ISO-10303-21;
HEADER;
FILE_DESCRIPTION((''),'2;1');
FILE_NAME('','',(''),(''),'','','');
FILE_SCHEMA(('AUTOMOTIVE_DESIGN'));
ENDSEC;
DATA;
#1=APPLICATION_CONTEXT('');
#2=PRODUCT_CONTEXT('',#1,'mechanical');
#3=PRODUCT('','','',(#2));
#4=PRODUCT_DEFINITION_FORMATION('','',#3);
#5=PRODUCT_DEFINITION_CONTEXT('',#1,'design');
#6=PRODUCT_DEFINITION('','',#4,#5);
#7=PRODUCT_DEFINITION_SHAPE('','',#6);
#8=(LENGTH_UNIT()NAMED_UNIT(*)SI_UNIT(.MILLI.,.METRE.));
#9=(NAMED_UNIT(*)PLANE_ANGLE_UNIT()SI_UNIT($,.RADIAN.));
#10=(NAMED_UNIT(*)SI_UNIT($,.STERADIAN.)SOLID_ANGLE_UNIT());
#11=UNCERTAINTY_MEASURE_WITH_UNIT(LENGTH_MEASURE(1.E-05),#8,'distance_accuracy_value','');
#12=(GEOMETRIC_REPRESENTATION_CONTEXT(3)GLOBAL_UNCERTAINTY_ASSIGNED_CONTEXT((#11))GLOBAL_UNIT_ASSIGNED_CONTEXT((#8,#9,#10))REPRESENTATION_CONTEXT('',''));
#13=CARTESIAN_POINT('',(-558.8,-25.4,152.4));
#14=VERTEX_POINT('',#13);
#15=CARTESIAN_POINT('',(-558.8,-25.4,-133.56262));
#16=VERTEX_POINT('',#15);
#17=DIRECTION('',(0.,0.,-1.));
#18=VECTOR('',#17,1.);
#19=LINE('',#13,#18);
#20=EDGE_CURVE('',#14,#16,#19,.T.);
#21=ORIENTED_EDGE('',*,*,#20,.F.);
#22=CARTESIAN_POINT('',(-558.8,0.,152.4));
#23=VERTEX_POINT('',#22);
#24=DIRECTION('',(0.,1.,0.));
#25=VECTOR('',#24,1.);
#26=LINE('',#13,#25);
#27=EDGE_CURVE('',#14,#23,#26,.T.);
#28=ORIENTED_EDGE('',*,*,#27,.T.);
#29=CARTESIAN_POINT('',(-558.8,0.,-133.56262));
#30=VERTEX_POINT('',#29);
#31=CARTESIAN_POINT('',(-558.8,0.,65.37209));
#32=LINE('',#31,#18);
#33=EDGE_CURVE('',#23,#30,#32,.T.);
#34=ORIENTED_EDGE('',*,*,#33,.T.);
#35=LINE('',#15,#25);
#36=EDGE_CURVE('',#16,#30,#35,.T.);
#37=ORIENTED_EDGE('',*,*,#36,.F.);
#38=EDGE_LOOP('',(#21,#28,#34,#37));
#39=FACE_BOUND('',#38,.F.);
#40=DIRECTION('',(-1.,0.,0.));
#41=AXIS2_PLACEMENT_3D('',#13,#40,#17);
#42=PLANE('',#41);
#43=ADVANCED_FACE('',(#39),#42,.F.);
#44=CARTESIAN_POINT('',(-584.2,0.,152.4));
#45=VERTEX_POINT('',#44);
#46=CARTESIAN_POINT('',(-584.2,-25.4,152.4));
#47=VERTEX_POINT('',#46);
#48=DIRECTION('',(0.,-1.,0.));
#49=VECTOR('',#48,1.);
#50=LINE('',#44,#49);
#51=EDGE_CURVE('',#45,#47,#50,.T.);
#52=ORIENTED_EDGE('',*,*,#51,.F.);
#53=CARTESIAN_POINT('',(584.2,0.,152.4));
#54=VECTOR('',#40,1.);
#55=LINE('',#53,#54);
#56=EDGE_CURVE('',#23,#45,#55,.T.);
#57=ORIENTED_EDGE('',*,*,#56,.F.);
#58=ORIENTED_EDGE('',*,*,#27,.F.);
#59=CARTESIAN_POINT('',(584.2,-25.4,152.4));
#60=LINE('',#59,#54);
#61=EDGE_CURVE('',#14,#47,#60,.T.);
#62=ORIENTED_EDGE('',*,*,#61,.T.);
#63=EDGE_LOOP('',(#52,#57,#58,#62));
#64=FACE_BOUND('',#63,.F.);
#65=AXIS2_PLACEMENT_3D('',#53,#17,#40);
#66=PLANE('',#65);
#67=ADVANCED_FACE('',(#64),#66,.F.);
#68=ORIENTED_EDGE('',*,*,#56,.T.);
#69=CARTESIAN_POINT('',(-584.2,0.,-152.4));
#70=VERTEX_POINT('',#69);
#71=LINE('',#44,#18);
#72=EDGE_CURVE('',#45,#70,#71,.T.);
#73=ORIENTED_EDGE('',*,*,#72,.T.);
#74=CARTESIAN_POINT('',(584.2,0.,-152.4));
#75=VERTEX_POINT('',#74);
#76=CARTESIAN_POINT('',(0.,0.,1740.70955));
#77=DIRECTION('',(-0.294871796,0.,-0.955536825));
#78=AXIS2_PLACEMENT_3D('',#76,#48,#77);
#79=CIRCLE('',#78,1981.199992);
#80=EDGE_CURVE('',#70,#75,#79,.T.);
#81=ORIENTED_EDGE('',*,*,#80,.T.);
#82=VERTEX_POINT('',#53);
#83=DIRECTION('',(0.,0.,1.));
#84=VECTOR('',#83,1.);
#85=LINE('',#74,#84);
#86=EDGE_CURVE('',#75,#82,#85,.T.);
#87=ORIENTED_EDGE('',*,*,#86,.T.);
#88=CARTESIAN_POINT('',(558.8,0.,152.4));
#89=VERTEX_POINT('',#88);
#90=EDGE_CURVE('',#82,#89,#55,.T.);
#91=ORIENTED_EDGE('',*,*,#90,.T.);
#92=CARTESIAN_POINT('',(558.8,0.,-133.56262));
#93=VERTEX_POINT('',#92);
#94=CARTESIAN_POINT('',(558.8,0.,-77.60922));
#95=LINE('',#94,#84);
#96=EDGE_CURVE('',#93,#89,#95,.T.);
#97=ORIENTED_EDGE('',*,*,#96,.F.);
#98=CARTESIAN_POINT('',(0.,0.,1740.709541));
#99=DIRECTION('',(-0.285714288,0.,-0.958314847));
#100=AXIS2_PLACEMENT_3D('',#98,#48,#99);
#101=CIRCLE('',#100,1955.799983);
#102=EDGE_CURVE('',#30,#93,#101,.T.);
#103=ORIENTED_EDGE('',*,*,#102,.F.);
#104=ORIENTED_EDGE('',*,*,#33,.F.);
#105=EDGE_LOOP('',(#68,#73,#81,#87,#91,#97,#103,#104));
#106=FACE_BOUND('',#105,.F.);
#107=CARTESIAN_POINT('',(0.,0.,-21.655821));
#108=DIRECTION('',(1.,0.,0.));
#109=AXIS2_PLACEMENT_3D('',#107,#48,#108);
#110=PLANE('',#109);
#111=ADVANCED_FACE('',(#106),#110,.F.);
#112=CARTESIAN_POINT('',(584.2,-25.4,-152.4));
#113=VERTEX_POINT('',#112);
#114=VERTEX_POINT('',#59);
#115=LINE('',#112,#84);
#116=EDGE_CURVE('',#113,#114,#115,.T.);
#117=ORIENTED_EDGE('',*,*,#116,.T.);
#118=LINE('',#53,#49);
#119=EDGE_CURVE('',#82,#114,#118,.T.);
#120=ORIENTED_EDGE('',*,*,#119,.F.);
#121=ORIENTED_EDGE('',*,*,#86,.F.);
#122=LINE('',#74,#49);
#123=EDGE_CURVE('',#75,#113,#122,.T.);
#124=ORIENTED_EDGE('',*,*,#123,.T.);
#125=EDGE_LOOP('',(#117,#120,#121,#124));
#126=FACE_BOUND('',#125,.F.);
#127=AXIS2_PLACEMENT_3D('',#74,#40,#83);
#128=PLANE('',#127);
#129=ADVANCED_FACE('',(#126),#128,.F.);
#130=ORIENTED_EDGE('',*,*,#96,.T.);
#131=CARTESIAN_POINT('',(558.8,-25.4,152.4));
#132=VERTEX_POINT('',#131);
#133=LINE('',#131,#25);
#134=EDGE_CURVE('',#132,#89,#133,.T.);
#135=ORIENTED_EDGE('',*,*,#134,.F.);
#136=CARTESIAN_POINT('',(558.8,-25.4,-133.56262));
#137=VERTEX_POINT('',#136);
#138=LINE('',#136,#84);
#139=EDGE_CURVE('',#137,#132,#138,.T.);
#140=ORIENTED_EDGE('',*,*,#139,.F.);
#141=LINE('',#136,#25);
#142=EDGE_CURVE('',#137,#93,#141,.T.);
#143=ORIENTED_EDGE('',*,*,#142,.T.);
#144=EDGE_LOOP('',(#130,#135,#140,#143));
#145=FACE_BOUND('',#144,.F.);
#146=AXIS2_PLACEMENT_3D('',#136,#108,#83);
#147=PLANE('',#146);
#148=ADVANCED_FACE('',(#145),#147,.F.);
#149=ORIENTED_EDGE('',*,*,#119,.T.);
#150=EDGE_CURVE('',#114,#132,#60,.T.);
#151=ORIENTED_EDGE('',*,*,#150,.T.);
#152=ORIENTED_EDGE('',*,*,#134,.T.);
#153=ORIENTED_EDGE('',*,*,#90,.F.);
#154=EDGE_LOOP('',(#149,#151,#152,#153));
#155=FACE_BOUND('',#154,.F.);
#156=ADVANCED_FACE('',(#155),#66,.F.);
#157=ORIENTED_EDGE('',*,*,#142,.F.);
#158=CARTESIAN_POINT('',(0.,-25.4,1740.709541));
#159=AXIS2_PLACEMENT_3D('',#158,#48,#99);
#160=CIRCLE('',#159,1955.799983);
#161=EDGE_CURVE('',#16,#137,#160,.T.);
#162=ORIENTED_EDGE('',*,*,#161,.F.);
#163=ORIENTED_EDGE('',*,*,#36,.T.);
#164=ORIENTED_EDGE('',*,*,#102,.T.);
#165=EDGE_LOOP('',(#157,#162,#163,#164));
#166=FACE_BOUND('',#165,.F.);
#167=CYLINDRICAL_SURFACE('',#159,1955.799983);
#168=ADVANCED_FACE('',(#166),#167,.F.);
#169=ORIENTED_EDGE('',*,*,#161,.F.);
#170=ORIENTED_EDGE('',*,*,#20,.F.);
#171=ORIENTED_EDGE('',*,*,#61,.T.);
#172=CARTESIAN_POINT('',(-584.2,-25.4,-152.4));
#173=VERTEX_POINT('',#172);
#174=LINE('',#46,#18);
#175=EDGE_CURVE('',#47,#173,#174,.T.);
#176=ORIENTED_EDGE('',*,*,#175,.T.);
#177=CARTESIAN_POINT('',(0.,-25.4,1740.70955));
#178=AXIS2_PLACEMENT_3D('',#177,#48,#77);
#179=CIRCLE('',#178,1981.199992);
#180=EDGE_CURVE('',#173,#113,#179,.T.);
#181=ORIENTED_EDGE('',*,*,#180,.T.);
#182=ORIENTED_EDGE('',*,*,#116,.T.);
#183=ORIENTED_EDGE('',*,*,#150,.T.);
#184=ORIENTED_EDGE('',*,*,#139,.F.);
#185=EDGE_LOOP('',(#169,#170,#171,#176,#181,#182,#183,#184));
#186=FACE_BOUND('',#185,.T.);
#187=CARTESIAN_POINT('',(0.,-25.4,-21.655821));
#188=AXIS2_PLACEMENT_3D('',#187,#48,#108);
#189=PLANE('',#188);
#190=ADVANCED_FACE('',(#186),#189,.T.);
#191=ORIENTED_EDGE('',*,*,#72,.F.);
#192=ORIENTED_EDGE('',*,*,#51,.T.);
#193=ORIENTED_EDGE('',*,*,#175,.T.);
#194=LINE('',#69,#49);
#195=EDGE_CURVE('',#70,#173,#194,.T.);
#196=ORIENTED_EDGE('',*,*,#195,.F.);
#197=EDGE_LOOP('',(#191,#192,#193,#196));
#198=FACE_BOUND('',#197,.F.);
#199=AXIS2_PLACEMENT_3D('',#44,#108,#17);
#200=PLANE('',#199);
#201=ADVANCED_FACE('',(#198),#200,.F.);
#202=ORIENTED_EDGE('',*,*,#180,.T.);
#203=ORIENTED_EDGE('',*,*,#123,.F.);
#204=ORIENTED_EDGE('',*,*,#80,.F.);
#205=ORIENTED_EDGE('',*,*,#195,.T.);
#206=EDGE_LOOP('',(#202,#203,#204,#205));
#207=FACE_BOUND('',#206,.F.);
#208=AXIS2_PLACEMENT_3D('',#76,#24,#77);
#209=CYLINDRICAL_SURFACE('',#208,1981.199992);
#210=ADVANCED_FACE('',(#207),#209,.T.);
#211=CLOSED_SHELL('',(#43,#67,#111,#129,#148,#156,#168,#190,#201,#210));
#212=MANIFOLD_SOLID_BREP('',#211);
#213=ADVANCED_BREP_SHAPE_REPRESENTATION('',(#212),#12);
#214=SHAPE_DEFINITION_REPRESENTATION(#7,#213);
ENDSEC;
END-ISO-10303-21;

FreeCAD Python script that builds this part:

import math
import FreeCAD as App
import Part
import Sketcher

V = App.Vector
Q = App.Units.Quantity

doc = App.newDocument("Part")
params = doc.addObject("Spreadsheet::Sheet", "Params")
for row, (alias, value) in enumerate([
    ("sketch1_width", "46 in"),
    ("sketch1_height", "12 in"),
    ("pad1_length", "1 in"),
    ("sketch2_width", "44 in"),
], start=1):
    params.set(f"A{row}", alias)
    params.set(f"B{row}", "=" + value)
    params.setAlias(f"B{row}", alias)

body = doc.addObject("PartDesign::Body", "Body")

# Sketch on XZ plane
sketch1 = body.newObject("Sketcher::SketchObject", "Sketch")
sketch1.AttachmentSupport = (doc.getObject("XZ_Plane"), [""])
sketch1.MapMode = "FlatFace"
sketch1.addGeometry([
    Part.LineSegment(V(584, 152, 0), V(-584, 152, 0)),
    Part.LineSegment(V(-584, 152, 0), V(-584, -152, 0)),
    Part.ArcOfCircle(Part.Circle(V(0, 1741, 0), V(0, 0, 1), 1981), math.radians(-107), math.radians(-73)),
    Part.LineSegment(V(584, -152, 0), V(584, 152, 0)),
], False)
sketch1.addConstraint([
    Sketcher.Constraint("Coincident", 0, 2, 1, 1),
    Sketcher.Constraint("Coincident", 1, 2, 2, 1),
    Sketcher.Constraint("Coincident", 2, 2, 3, 1),
    Sketcher.Constraint("Coincident", 3, 2, 0, 1),
    Sketcher.Constraint("Horizontal", 0),
    Sketcher.Constraint("Vertical", 1),
    Sketcher.Constraint("Vertical", 3),
    Sketcher.Constraint("Symmetric", 1, 2, 3, 2, -1, 1),
    Sketcher.Constraint("PointOnObject", 2, 3, -2),
    Sketcher.Constraint("DistanceX", 0, 2, 0, 1, Q("46 in")),
    Sketcher.Constraint("DistanceY", 1, 2, 1, 1, Q("12 in")),
    Sketcher.Constraint("Radius", 2, 1981.199992),
])
sketch1.setExpression("Constraints[9]", "Params.sketch1_width")
sketch1.setExpression("Constraints[10]", "Params.sketch1_height")
pad1 = body.newObject("PartDesign::Pad", "Pad")
pad1.Profile = sketch1
pad1.setExpression("Length", "Params.pad1_length")

# Sketch on XZ plane
sketch2 = body.newObject("Sketcher::SketchObject", "Sketch001")
sketch2.AttachmentSupport = (doc.getObject("XZ_Plane"), [""])
sketch2.MapMode = "FlatFace"
sketch2.AttachmentOffset = App.Placement(V(0, 0, 1 * 25.4), App.Rotation())
sketch2.addGeometry([
    Part.LineSegment(V(559, -134, 0), V(559, 152, 0)),
    Part.LineSegment(V(559, 152, 0), V(-559, 152, 0)),
    Part.LineSegment(V(-559, 152, 0), V(-559, -134, 0)),
    Part.ArcOfCircle(Part.Circle(V(0, 1741, 0), V(0, 0, 1), 1956), math.radians(-107), math.radians(-73)),
], False)
sketch2.addConstraint([
    Sketcher.Constraint("Coincident", 0, 2, 1, 1),
    Sketcher.Constraint("Coincident", 1, 2, 2, 1),
    Sketcher.Constraint("Coincident", 2, 2, 3, 1),
    Sketcher.Constraint("Coincident", 3, 2, 0, 1),
    Sketcher.Constraint("Vertical", 0),
    Sketcher.Constraint("Horizontal", 1),
    Sketcher.Constraint("Vertical", 2),
    Sketcher.Constraint("PointOnObject", 3, 3, -2),
    Sketcher.Constraint("Equal", 0, 2),
    Sketcher.Constraint("DistanceX", 1, 2, 1, 1, Q("44 in")),
    Sketcher.Constraint("DistanceY", -1, 1, 0, 2, Q("6 in")),
    Sketcher.Constraint("Radius", 3, 1955.799983),
    Sketcher.Constraint("DistanceY", 0, 1, 0, 2, 285.96262),
])
sketch2.setExpression("Constraints[9]", "Params.sketch2_width")
pocket1 = body.newObject("PartDesign::Pocket", "Pocket")
pocket1.Profile = sketch2
pocket1.Type = "ThroughAll"

doc.recompute()
